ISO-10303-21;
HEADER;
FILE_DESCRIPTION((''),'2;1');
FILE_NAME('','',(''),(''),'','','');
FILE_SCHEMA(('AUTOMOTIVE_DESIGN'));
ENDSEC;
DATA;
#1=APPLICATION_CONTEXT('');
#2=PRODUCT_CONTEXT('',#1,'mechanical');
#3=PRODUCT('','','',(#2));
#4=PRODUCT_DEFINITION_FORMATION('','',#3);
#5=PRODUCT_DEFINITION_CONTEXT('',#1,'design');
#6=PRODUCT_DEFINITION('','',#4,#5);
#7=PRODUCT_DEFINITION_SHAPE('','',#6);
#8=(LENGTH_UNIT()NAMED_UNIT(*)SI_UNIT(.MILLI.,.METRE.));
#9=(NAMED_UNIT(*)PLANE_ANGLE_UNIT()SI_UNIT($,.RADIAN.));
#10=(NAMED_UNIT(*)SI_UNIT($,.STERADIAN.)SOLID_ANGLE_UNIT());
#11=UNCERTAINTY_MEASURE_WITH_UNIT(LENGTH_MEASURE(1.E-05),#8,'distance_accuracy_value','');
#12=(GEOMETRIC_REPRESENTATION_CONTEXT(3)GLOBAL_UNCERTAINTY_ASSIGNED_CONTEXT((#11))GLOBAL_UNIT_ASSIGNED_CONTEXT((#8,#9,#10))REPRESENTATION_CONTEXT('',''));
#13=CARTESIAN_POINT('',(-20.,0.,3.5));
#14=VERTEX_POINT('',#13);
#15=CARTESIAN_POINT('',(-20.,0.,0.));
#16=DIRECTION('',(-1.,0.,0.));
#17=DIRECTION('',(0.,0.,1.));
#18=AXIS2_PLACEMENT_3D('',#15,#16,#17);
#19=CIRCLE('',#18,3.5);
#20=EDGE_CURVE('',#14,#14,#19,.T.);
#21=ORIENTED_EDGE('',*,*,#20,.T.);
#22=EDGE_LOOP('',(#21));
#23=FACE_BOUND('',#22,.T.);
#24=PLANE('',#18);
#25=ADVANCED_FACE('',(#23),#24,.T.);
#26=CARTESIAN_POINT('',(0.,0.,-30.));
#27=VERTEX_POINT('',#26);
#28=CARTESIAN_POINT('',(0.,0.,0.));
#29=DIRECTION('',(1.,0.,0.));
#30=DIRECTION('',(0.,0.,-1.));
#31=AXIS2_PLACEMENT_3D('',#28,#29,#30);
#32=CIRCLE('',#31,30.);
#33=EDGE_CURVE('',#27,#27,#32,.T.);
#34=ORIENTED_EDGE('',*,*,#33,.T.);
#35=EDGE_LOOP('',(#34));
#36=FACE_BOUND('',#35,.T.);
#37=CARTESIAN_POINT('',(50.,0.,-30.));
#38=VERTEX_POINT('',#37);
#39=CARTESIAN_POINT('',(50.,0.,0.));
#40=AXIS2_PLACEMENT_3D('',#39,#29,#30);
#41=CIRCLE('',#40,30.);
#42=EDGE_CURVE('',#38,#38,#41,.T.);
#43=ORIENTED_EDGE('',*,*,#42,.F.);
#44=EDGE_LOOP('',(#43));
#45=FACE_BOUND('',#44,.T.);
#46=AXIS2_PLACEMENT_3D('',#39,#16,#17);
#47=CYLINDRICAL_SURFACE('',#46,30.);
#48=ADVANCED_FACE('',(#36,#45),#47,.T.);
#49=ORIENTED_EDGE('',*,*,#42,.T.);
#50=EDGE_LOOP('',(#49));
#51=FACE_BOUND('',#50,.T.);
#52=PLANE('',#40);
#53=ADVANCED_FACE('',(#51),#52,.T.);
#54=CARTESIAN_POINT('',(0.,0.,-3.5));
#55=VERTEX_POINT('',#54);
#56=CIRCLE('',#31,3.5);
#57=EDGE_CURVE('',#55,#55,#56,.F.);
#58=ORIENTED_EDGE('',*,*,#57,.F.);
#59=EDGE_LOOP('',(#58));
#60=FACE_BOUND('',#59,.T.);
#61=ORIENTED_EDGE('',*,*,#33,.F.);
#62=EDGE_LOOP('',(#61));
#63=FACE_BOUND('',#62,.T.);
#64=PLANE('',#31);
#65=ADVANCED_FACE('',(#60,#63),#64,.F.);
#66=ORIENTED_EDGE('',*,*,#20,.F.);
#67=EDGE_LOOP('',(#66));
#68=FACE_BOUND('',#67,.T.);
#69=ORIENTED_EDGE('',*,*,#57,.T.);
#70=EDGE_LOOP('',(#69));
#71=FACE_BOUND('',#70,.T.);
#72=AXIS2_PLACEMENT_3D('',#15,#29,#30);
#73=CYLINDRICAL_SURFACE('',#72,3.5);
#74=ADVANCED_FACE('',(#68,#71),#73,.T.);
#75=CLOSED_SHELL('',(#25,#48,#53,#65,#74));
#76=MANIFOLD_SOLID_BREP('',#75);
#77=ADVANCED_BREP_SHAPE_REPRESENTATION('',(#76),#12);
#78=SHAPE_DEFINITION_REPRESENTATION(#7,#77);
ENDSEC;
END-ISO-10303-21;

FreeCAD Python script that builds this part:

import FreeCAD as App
import Part
import Sketcher
from FreeCAD import Vector
Q = App.Units.Quantity

doc = App.newDocument("Part")
body = doc.addObject("PartDesign::Body", "Body")

# Sketch on YZ plane
sketch1 = body.newObject("Sketcher::SketchObject", "Sketch")
sketch1.AttachmentSupport = (doc.getObject("YZ_Plane"), [""])
sketch1.MapMode = "FlatFace"
sketch1.addGeometry(Part.Circle(Vector(0, 0, 0), Vector(0, 0, 1), 30), False)
sketch1.addConstraint([
    Sketcher.Constraint("Coincident", 0, 3, -1, 1),
    Sketcher.Constraint("Diameter", 0, Q("60 mm")),
])
pad1 = body.newObject("PartDesign::Pad", "Pad")
pad1.Profile = sketch1
pad1.Length = 50

# Sketch on YZ plane
sketch2 = body.newObject("Sketcher::SketchObject", "Sketch001")
sketch2.AttachmentSupport = (doc.getObject("YZ_Plane"), [""])
sketch2.MapMode = "FlatFace"
sketch2.addGeometry(Part.Circle(Vector(0, 0, 0), Vector(0, 0, 1), 3.5), False)
sketch2.addConstraint([
    Sketcher.Constraint("Coincident", 0, 3, -1, 1),
    Sketcher.Constraint("Diameter", 0, Q("7 mm")),
])
pad2 = body.newObject("PartDesign::Pad", "Pad001")
pad2.Profile = sketch2
pad2.Length = 20
pad2.Reversed = True

doc.recompute()
